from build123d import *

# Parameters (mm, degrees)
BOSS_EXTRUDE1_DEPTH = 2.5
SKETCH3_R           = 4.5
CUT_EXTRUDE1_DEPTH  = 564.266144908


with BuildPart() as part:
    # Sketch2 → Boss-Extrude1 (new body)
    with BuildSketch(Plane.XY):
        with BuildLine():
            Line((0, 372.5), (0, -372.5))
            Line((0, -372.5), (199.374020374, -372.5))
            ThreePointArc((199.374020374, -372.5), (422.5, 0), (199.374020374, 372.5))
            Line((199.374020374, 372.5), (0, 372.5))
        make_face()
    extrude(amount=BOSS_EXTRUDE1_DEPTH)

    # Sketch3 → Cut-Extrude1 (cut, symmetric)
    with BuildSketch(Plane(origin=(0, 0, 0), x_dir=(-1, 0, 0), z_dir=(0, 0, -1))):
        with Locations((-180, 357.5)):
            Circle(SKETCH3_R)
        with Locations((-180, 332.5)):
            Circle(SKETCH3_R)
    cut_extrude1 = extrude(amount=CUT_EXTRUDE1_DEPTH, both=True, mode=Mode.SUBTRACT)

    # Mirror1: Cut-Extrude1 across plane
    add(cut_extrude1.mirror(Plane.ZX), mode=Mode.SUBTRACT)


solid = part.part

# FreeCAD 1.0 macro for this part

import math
import FreeCAD as App
import Part
import Sketcher

V = App.Vector

doc = App.newDocument("Part")
params = doc.addObject("Spreadsheet::Sheet", "Params")
for row, (alias, value) in enumerate([
    ("sketch1_radius", "422.5 mm"),
    ("sketch1_height", "745 mm"),
    ("pad1_length", "2.5 mm"),
    ("sketch2_diameter", "9 mm"),
    ("pocket1_length", "1128.53229 mm"),
], start=1):
    params.set(f"A{row}", alias)
    params.set(f"B{row}", "=" + value)
    params.setAlias(f"B{row}", alias)

body = doc.addObject("PartDesign::Body", "Body")

sketch1 = body.newObject("Sketcher::SketchObject", "Sketch")
sketch1.AttachmentSupport = (doc.getObject("XY_Plane"), [""])
sketch1.MapMode = "FlatFace"
sketch1.addGeometry(Part.LineSegment(V(0, 372.5, 0), V(0, -372.5, 0)), False)
sketch1.addGeometry(Part.LineSegment(V(0, -372.5, 0), V(199.37402, -372.5, 0)), False)
sketch1.addGeometry(Part.ArcOfCircle(Part.Circle(V(0, 0, 0), V(0, 0, 1), 422.5), math.radians(-61.842873), math.radians(61.842873)), False)
sketch1.addGeometry(Part.LineSegment(V(199.37402, 372.5, 0), V(0, 372.5, 0)), False)
sketch1.addConstraint(Sketcher.Constraint("Coincident", 0, 2, 1, 1))
sketch1.addConstraint(Sketcher.Constraint("Coincident", 1, 2, 2, 1))
sketch1.addConstraint(Sketcher.Constraint("Coincident", 2, 2, 3, 1))
sketch1.addConstraint(Sketcher.Constraint("Coincident", 3, 2, 0, 1))
sketch1.addConstraint(Sketcher.Constraint("Vertical", 0))
sketch1.addConstraint(Sketcher.Constraint("Horizontal", 1))
sketch1.addConstraint(Sketcher.Constraint("Horizontal", 3))
sketch1.addConstraint(Sketcher.Constraint("Coincident", 2, 3, -1, 1))
sketch1.addConstraint(Sketcher.Constraint("Symmetric", 0, 2, 3, 2, -1, 1))
sketch1.addConstraint(Sketcher.Constraint("Radius", 2, 422.5))
sketch1.addConstraint(Sketcher.Constraint("DistanceY", 0, 2, 0, 1, 745.0))
sketch1.setExpression("Constraints[9]", "Params.sketch1_radius")
sketch1.setExpression("Constraints[10]", "Params.sketch1_height")
pad1 = body.newObject("PartDesign::Pad", "Pad")
pad1.Profile = sketch1
pad1.setExpression("Length", "Params.pad1_length")

sketch2 = body.newObject("Sketcher::SketchObject", "Sketch001")
sketch2.AttachmentSupport = (doc.getObject("XY_Plane"), [""])
sketch2.MapMode = "FlatFace"
sketch2.addGeometry(Part.Circle(V(180, 357.5, 0), V(0, 0, 1), 4.5), False)
sketch2.addGeometry(Part.Circle(V(180, 332.5, 0), V(0, 0, 1), 4.5), False)
sketch2.addConstraint(Sketcher.Constraint("Equal", 0, 1))
sketch2.addConstraint(Sketcher.Constraint("Vertical", 0, 3, 1, 3))
sketch2.addConstraint(Sketcher.Constraint("Diameter", 0, 9.0))
sketch2.addConstraint(Sketcher.Constraint("DistanceX", -1, 1, 0, 3, 180.0))
sketch2.addConstraint(Sketcher.Constraint("DistanceY", 1, 3, 0, 3, 25.0))
sketch2.addConstraint(Sketcher.Constraint("DistanceY", -1, 1, 0, 3, 357.5))
sketch2.setExpression("Constraints[2]", "Params.sketch2_diameter")
pocket1 = body.newObject("PartDesign::Pocket", "Pocket")
pocket1.Profile = sketch2
pocket1.setExpression("Length", "Params.pocket1_length")
pocket1.Midplane = True
doc.recompute()

mirrored = body.newObject("PartDesign::Mirrored", "Mirrored")
mirrored.Originals = [pocket1]
mirrored.MirrorPlane = (doc.getObject("XZ_Plane"), [""])
body.Tip = mirrored

doc.recompute()
